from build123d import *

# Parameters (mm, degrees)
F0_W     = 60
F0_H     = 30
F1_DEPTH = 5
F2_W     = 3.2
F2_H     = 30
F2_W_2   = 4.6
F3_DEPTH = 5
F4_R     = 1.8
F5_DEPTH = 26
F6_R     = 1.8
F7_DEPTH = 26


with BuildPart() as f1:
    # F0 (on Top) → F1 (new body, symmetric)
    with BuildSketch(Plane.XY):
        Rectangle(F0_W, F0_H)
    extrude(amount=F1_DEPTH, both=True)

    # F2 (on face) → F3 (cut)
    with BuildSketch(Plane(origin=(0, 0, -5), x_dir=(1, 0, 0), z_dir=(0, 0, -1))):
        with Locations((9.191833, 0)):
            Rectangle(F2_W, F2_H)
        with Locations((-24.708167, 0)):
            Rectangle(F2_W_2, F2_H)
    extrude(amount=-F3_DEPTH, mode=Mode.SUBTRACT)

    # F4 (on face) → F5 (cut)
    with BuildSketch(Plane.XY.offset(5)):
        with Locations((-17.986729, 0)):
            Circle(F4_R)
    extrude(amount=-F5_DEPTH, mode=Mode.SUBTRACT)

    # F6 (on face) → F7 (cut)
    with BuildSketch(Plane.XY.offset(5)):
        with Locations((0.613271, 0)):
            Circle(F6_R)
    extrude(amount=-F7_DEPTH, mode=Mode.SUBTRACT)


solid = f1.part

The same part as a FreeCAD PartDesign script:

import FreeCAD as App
import Part
import Sketcher
from FreeCAD import Vector

doc = App.newDocument("Part")
body = doc.addObject("PartDesign::Body", "Body")

# Sketch on XY plane
sketch1 = body.newObject("Sketcher::SketchObject", "Sketch")
sketch1.AttachmentSupport = (doc.getObject("XY_Plane"), [""])
sketch1.MapMode = "FlatFace"
sketch1.addGeometry([
    Part.LineSegment(Vector(-30, 15, 0), Vector(-30, -15, 0)),
    Part.LineSegment(Vector(-30, -15, 0), Vector(30, -15, 0)),
    Part.LineSegment(Vector(30, -15, 0), Vector(30, 15, 0)),
    Part.LineSegment(Vector(30, 15, 0), Vector(-30, 15, 0)),
], False)
sketch1.addConstraint([
    Sketcher.Constraint("Coincident", 0, 2, 1, 1),
    Sketcher.Constraint("Coincident", 1, 2, 2, 1),
    Sketcher.Constraint("Coincident", 2, 2, 3, 1),
    Sketcher.Constraint("Coincident", 3, 2, 0, 1),
    Sketcher.Constraint("Vertical", 0),
    Sketcher.Constraint("Horizontal", 1),
    Sketcher.Constraint("Vertical", 2),
    Sketcher.Constraint("Horizontal", 3),
    Sketcher.Constraint("Symmetric", 0, 2, 2, 2, -1, 1),
    Sketcher.Constraint("DistanceX", 1, 1, 1, 2, 60.0),
    Sketcher.Constraint("DistanceY", 0, 2, 0, 1, 30.0),
])
pad1 = body.newObject("PartDesign::Pad", "Pad")
pad1.Profile = sketch1
pad1.Length = 10
pad1.Midplane = True

# Sketch on XY plane
sketch2 = body.newObject("Sketcher::SketchObject", "Sketch001")
sketch2.AttachmentSupport = (doc.getObject("XY_Plane"), [""])
sketch2.MapMode = "FlatFace"
sketch2.AttachmentOffset = App.Placement(Vector(0, 0, -5), App.Rotation())
sketch2.addGeometry([
    Part.LineSegment(Vector(7.591833, -15, 0), Vector(7.591833, 15, 0)),  # 0
    Part.LineSegment(Vector(7.591833, 15, 0), Vector(10.791833, 15, 0)),  # 1
    Part.LineSegment(Vector(10.791833, 15, 0), Vector(10.791833, -15, 0)),  # 2
    Part.LineSegment(Vector(10.791833, -15, 0), Vector(7.591833, -15, 0)),  # 3
    Part.LineSegment(Vector(-27.008167, -15, 0), Vector(-27.008167, 15, 0)),  # 4
    Part.LineSegment(Vector(-27.008167, 15, 0), Vector(-22.408167, 15, 0)),  # 5
    Part.LineSegment(Vector(-22.408167, 15, 0), Vector(-22.408167, -15, 0)),  # 6
    Part.LineSegment(Vector(-22.408167, -15, 0), Vector(-27.008167, -15, 0)),  # 7
], False)
sketch2.addConstraint([
    Sketcher.Constraint("Coincident", 0, 2, 1, 1),
    Sketcher.Constraint("Coincident", 1, 2, 2, 1),
    Sketcher.Constraint("Coincident", 2, 2, 3, 1),
    Sketcher.Constraint("Coincident", 3, 2, 0, 1),
    Sketcher.Constraint("Coincident", 4, 2, 5, 1),
    Sketcher.Constraint("Coincident", 5, 2, 6, 1),
    Sketcher.Constraint("Coincident", 6, 2, 7, 1),
    Sketcher.Constraint("Coincident", 7, 2, 4, 1),
    Sketcher.Constraint("Vertical", 0),
    Sketcher.Constraint("Horizontal", 1),
    Sketcher.Constraint("Vertical", 2),
    Sketcher.Constraint("Horizontal", 3),
    Sketcher.Constraint("Vertical", 4),
    Sketcher.Constraint("Horizontal", 5),
    Sketcher.Constraint("Vertical", 6),
    Sketcher.Constraint("Horizontal", 7),
    Sketcher.Constraint("Horizontal", 1, 2, 4, 2),
    Sketcher.Constraint("Horizontal", 3, 2, 6, 2),
    Sketcher.Constraint("DistanceY", 0, 1, 0, 2, 30.0),
    Sketcher.Constraint("DistanceX", 1, 1, 1, 2, 3.2),
    Sketcher.Constraint("DistanceX", 5, 1, 5, 2, 4.6),
    Sketcher.Constraint("DistanceY", -1, 1, 0, 2, 15.0),
    Sketcher.Constraint("DistanceX", 5, 2, 0, 2, 30.0),
    Sketcher.Constraint("DistanceX", -1, 1, 0, 2, 7.591833),
])
pocket1 = body.newObject("PartDesign::Pocket", "Pocket")
pocket1.Profile = sketch2
pocket1.Length = 5
pocket1.Reversed = True

# Sketch on XY plane
sketch3 = body.newObject("Sketcher::SketchObject", "Sketch002")
sketch3.AttachmentSupport = (doc.getObject("XY_Plane"), [""])
sketch3.MapMode = "FlatFace"
sketch3.AttachmentOffset = App.Placement(Vector(0, 0, 5), App.Rotation())
sketch3.addGeometry(Part.Circle(Vector(-17.986729, 0, 0), Vector(0, 0, 1), 1.8), False)
sketch3.addConstraint([
    Sketcher.Constraint("PointOnObject", 0, 3, -1),
    Sketcher.Constraint("Diameter", 0, 3.6),
    Sketcher.Constraint("DistanceX", 0, 3, -1, 1, 17.986729),
])
pocket2 = body.newObject("PartDesign::Pocket", "Pocket001")
pocket2.Profile = sketch3
pocket2.Length = 26

# Sketch on XY plane
sketch4 = body.newObject("Sketcher::SketchObject", "Sketch003")
sketch4.AttachmentSupport = (doc.getObject("XY_Plane"), [""])
sketch4.MapMode = "FlatFace"
sketch4.AttachmentOffset = App.Placement(Vector(0, 0, 5), App.Rotation())
sketch4.addGeometry(Part.Circle(Vector(0.613271, 0, 0), Vector(0, 0, 1), 1.8), False)
sketch4.addConstraint([
    Sketcher.Constraint("PointOnObject", 0, 3, -1),
    Sketcher.Constraint("Diameter", 0, 3.6),
    Sketcher.Constraint("DistanceX", -1, 1, 0, 3, 0.613271),
])
pocket3 = body.newObject("PartDesign::Pocket", "Pocket002")
pocket3.Profile = sketch4
pocket3.Length = 26

doc.recompute()
